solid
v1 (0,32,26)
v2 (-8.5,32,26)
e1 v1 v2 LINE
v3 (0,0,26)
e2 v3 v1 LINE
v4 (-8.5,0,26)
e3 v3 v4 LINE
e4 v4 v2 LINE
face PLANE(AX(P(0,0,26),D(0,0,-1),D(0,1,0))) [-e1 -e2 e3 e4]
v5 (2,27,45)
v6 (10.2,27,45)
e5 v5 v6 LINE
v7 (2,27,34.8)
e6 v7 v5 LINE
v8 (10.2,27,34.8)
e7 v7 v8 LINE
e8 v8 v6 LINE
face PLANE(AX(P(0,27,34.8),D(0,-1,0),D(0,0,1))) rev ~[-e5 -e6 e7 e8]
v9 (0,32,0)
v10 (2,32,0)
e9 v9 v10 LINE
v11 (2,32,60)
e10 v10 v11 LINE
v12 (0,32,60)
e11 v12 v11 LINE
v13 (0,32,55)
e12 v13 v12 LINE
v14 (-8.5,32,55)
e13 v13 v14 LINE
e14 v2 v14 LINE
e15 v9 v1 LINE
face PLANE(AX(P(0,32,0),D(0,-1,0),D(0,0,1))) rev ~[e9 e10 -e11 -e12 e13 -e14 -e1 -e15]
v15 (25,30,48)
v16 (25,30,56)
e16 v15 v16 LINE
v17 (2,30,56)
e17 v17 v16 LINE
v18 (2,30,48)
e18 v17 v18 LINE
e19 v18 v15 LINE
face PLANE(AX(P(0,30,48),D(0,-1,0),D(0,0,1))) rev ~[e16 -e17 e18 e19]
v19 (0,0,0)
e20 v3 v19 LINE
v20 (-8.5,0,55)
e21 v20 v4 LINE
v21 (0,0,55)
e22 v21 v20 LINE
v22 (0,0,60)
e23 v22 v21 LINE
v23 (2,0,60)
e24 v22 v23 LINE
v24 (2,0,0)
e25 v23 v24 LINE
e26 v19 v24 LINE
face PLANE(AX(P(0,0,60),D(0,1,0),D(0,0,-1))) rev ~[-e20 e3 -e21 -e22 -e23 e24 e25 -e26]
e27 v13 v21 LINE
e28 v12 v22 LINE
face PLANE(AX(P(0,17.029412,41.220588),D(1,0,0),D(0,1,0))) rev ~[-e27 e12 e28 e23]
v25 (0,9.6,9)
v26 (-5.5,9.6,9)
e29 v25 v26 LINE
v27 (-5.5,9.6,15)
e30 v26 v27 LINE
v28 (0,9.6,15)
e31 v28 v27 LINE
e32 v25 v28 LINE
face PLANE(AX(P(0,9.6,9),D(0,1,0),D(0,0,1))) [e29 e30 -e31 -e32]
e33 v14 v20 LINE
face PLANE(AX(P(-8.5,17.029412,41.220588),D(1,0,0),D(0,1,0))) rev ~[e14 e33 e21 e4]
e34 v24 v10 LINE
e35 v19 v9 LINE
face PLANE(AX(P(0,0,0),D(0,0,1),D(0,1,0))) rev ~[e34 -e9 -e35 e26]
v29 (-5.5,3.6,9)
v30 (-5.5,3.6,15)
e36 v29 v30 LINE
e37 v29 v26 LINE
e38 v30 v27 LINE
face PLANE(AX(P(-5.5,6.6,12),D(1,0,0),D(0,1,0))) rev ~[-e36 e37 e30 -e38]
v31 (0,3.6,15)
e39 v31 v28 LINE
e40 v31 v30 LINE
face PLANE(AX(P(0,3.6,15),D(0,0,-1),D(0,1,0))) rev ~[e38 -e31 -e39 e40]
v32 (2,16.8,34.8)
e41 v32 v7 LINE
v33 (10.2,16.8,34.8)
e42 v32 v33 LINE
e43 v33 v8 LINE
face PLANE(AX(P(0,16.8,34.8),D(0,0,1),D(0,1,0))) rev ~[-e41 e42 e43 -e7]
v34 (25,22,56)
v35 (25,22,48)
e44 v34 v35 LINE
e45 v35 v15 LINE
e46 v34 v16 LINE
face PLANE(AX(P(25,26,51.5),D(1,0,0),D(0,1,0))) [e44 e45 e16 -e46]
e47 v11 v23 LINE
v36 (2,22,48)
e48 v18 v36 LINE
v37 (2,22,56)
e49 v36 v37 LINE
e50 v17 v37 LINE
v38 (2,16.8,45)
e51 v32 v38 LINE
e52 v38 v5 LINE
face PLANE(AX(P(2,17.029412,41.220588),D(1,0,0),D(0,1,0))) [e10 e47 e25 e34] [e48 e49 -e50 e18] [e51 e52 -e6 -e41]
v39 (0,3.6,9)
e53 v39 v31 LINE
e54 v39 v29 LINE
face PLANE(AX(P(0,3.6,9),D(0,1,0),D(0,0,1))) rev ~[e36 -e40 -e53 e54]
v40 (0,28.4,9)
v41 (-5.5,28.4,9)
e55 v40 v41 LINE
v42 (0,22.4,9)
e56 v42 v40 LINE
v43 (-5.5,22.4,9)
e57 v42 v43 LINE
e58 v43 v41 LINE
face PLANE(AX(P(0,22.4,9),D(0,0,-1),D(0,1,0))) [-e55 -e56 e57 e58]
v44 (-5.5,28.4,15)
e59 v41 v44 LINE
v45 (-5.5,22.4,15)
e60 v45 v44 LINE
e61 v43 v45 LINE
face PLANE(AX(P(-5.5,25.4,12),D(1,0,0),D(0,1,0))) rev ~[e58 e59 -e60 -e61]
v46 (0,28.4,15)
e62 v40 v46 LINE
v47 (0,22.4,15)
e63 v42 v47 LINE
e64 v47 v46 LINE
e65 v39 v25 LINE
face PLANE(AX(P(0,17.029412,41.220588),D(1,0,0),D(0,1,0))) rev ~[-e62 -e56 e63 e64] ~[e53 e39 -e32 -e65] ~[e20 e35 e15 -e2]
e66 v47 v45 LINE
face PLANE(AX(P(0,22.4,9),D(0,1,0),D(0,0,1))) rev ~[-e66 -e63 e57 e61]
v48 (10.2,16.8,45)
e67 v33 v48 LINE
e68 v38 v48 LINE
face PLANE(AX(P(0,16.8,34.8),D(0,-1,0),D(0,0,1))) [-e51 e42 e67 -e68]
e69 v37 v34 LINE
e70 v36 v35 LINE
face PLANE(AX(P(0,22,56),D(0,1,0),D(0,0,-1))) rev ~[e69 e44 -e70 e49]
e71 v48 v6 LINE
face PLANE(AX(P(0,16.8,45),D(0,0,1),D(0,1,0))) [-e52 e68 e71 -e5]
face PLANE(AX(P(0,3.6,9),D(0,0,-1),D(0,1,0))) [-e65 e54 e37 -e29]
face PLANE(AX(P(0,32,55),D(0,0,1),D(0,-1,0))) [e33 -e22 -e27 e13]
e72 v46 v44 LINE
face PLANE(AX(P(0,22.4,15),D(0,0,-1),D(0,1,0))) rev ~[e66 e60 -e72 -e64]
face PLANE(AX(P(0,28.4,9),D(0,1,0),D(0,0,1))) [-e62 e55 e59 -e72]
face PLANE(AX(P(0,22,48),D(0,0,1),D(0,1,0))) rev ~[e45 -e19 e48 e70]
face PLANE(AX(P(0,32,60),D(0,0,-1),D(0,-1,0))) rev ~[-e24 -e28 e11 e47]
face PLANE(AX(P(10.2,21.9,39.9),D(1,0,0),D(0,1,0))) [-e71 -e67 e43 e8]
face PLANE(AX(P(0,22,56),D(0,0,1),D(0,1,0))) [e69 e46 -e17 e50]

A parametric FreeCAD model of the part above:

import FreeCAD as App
import Part
import Sketcher
from FreeCAD import Vector


def add_polygon(sketch, points):
    """Adds a closed chain of lines whose ends are joined by coincident constraints."""
    first, n = sketch.GeometryCount, len(points)
    for a, b in zip(points, points[1:] + points[:1]):
        sketch.addGeometry(Part.LineSegment(App.Vector(*a, 0), App.Vector(*b, 0)), False)
    for i in range(n):
        sketch.addConstraint(Sketcher.Constraint("Coincident", first + i, 2, first + (i + 1) % n, 1))

doc = App.newDocument("Part")
body = doc.addObject("PartDesign::Body", "Body")

# Sketch on YZ plane
sketch1 = body.newObject("Sketcher::SketchObject", "Sketch")
sketch1.AttachmentSupport = (doc.getObject("YZ_Plane"), [""])
sketch1.MapMode = "FlatFace"
add_polygon(sketch1, [(0, 0), (32, 0), (32, 60), (0, 60)])  # lines 0-3
sketch1.addConstraint([
    Sketcher.Constraint("Horizontal", 0),
    Sketcher.Constraint("Vertical", 1),
    Sketcher.Constraint("Horizontal", 2),
    Sketcher.Constraint("Vertical", 3),
    Sketcher.Constraint("Coincident", 3, 2, -1, 1),
    Sketcher.Constraint("DistanceX", 0, 1, 0, 2, 32.0),
    Sketcher.Constraint("DistanceY", 1, 1, 1, 2, 60.0),
])
pad1 = body.newObject("PartDesign::Pad", "Pad")
pad1.Profile = sketch1
pad1.Length = 2

# Sketch on YZ plane
sketch2 = body.newObject("Sketcher::SketchObject", "Sketch001")
sketch2.AttachmentSupport = (doc.getObject("YZ_Plane"), [""])
sketch2.MapMode = "FlatFace"
add_polygon(sketch2, [(0, 55), (0, 26), (32, 26), (32, 55)])  # lines 0-3
sketch2.addConstraint([
    Sketcher.Constraint("Vertical", 0),
    Sketcher.Constraint("Horizontal", 1),
    Sketcher.Constraint("Vertical", 2),
    Sketcher.Constraint("Horizontal", 3),
    Sketcher.Constraint("PointOnObject", 0, 2, -2),
    Sketcher.Constraint("DistanceX", 1, 1, 1, 2, 32.0),
    Sketcher.Constraint("DistanceY", 0, 2, 0, 1, 29.0),
    Sketcher.Constraint("DistanceY", -1, 1, 0, 2, 26.0),
])
pad2 = body.newObject("PartDesign::Pad", "Pad001")
pad2.Profile = sketch2
pad2.Length = 8.5
pad2.Reversed = True

# Sketch on YZ plane
sketch3 = body.newObject("Sketcher::SketchObject", "Sketch002")
sketch3.AttachmentSupport = (doc.getObject("YZ_Plane"), [""])
sketch3.MapMode = "FlatFace"
add_polygon(sketch3, [(22, 48), (30, 48), (30, 56), (22, 56)])  # lines 0-3
sketch3.addConstraint([
    Sketcher.Constraint("Horizontal", 0),
    Sketcher.Constraint("Vertical", 1),
    Sketcher.Constraint("Horizontal", 2),
    Sketcher.Constraint("Vertical", 3),
    Sketcher.Constraint("Equal", 2, 1),
    Sketcher.Constraint("DistanceX", 0, 1, 0, 2, 8.0),
    Sketcher.Constraint("DistanceX", -1, 1, 0, 2, 30.0),
    Sketcher.Constraint("DistanceY", -1, 1, 0, 2, 48.0),
])
pad3 = body.newObject("PartDesign::Pad", "Pad002")
pad3.Profile = sketch3
pad3.Length = 25
body2 = doc.addObject("PartDesign::Body", "Body001")

# Sketch on YZ plane
sketch4 = body2.newObject("Sketcher::SketchObject", "Sketch003")
sketch4.AttachmentSupport = (doc.getObject("YZ_Plane001"), [""])
sketch4.MapMode = "FlatFace"
add_polygon(sketch4, [(17, 45), (17, 35), (27, 35), (27, 45)])  # lines 0-3
sketch4.addConstraint([
    Sketcher.Constraint("Vertical", 0),
    Sketcher.Constraint("Horizontal", 1),
    Sketcher.Constraint("Vertical", 2),
    Sketcher.Constraint("Horizontal", 3),
    Sketcher.Constraint("Equal", 3, 0),
    Sketcher.Constraint("DistanceX", 1, 1, 1, 2, 10.2),
    Sketcher.Constraint("DistanceX", -1, 1, 1, 2, 27.0),
    Sketcher.Constraint("DistanceY", -1, 1, 2, 2, 45.0),
])
pad4 = body2.newObject("PartDesign::Pad", "Pad003")
pad4.Profile = sketch4
pad4.Length = 10.2
doc.recompute()

boolean = body2.newObject("PartDesign::Boolean", "Boolean")
boolean.Type = "Fuse"
boolean.addObjects([body])

# Sketch on YZ plane
sketch5 = body2.newObject("Sketcher::SketchObject", "Sketch004")
sketch5.AttachmentSupport = (doc.getObject("YZ_Plane001"), [""])
sketch5.MapMode = "FlatFace"
add_polygon(sketch5, [(4, 15), (4, 9), (10, 9), (10, 15)])  # lines 0-3
add_polygon(sketch5, [(22, 15), (22, 9), (28, 9), (28, 15)])  # lines 4-7
sketch5.addConstraint([
    Sketcher.Constraint("Vertical", 0),
    Sketcher.Constraint("Horizontal", 1),
    Sketcher.Constraint("Vertical", 2),
    Sketcher.Constraint("Horizontal", 3),
    Sketcher.Constraint("Vertical", 4),
    Sketcher.Constraint("Horizontal", 5),
    Sketcher.Constraint("Vertical", 6),
    Sketcher.Constraint("Horizontal", 7),
    Sketcher.Constraint("Horizontal", 1, 2, 4, 2),
    Sketcher.Constraint("Horizontal", 3, 2, 6, 2),
    Sketcher.Constraint("Equal", 3, 5),
    Sketcher.Constraint("Equal", 7, 0),
    Sketcher.Constraint("DistanceX", 1, 1, 1, 2, 6.0),
    Sketcher.Constraint("DistanceY", -1, 1, 0, 2, 9.0),
    Sketcher.Constraint("DistanceX", -1, 1, 0, 2, 3.6),
    Sketcher.Constraint("DistanceX", -1, 1, 4, 2, 22.4),
])
pad5 = body2.newObject("PartDesign::Pad", "Pad004")
pad5.Profile = sketch5
pad5.Length = 5.5
pad5.Reversed = True

doc.recompute()
